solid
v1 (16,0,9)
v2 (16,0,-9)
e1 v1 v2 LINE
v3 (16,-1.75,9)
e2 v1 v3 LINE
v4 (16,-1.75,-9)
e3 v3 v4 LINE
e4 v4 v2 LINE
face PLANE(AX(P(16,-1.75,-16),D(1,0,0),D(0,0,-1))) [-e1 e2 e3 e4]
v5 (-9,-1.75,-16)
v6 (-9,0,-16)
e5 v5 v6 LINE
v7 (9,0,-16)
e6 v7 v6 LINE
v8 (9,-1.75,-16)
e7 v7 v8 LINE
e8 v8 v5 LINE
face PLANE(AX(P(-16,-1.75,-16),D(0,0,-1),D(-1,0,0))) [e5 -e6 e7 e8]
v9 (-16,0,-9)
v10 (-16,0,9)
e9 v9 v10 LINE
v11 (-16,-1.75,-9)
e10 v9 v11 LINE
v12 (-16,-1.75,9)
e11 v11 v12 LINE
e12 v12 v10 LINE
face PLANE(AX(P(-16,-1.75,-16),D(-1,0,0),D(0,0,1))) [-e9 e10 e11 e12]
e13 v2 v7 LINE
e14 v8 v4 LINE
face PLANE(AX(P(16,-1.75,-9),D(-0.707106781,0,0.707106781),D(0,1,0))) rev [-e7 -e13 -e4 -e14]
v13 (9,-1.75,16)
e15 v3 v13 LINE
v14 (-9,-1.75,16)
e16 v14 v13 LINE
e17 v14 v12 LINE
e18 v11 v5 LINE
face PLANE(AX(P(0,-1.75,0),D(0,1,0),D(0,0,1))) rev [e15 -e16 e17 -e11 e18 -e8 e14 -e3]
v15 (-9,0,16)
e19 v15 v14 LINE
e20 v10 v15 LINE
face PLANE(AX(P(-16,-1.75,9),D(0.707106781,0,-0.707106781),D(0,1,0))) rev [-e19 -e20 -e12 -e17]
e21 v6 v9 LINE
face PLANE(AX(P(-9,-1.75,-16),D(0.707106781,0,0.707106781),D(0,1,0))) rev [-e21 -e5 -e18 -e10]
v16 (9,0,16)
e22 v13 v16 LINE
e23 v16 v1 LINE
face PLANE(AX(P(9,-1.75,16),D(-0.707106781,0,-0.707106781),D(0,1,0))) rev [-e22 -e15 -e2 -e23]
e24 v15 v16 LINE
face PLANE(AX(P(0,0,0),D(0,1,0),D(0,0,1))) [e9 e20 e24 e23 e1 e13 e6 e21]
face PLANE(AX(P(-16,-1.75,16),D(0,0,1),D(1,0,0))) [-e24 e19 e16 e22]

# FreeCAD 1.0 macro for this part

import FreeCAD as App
import Part
import Sketcher
Q = App.Units.Quantity


def edges_at(feature, points):
    """Names of the edges that pass closest to the given points."""
    edges = feature.Shape.Edges
    near = lambda p: min(range(len(edges)), key=lambda i: edges[i].distToShape(Part.Vertex(*p))[0])
    return sorted({f"Edge{near(p) + 1}" for p in points})


def add_polygon(sketch, points):
    """Adds a closed chain of lines whose ends are joined by coincident constraints."""
    first, n = sketch.GeometryCount, len(points)
    for a, b in zip(points, points[1:] + points[:1]):
        sketch.addGeometry(Part.LineSegment(App.Vector(*a, 0), App.Vector(*b, 0)), False)
    for i in range(n):
        sketch.addConstraint(Sketcher.Constraint("Coincident", first + i, 2, first + (i + 1) % n, 1))

doc = App.newDocument("Part")
body = doc.addObject("PartDesign::Body", "Body")

# Sketch on XZ plane
sketch1 = doc.addObject("Sketcher::SketchObject", "Sketch")
body.addObject(sketch1)
sketch1.AttachmentSupport = (doc.XZ_Plane, [""])
sketch1.MapMode = "FlatFace"
add_polygon(sketch1, [(-16, -16), (-16, 16), (16, 16), (16, -16)])  # lines 0-3
sketch1.addConstraint([
    Sketcher.Constraint("Vertical", 0),
    Sketcher.Constraint("Horizontal", 1),
    Sketcher.Constraint("Vertical", 2),
    Sketcher.Constraint("Horizontal", 3),
    Sketcher.Constraint("Symmetric", 0, 2, 2, 2, -1, 1),
    Sketcher.Constraint("Equal", 3, 0),
    Sketcher.Constraint("DistanceX", 1, 1, 1, 2, Q("32 mm")),
])
pad1 = doc.addObject("PartDesign::Pad", "Pad")
body.addObject(pad1)
pad1.Profile = sketch1
pad1.Length = 1.75
doc.recompute()

chamfer = doc.addObject("PartDesign::Chamfer", "Chamfer")
body.addObject(chamfer)
chamfer.Base = (pad1, edges_at(pad1, [
    (16, -0.875, 16),
    (-16, -0.875, 16),
    (-16, -0.875, -16),
    (16, -0.875, -16),
]))
chamfer.Size = 7

doc.recompute()
